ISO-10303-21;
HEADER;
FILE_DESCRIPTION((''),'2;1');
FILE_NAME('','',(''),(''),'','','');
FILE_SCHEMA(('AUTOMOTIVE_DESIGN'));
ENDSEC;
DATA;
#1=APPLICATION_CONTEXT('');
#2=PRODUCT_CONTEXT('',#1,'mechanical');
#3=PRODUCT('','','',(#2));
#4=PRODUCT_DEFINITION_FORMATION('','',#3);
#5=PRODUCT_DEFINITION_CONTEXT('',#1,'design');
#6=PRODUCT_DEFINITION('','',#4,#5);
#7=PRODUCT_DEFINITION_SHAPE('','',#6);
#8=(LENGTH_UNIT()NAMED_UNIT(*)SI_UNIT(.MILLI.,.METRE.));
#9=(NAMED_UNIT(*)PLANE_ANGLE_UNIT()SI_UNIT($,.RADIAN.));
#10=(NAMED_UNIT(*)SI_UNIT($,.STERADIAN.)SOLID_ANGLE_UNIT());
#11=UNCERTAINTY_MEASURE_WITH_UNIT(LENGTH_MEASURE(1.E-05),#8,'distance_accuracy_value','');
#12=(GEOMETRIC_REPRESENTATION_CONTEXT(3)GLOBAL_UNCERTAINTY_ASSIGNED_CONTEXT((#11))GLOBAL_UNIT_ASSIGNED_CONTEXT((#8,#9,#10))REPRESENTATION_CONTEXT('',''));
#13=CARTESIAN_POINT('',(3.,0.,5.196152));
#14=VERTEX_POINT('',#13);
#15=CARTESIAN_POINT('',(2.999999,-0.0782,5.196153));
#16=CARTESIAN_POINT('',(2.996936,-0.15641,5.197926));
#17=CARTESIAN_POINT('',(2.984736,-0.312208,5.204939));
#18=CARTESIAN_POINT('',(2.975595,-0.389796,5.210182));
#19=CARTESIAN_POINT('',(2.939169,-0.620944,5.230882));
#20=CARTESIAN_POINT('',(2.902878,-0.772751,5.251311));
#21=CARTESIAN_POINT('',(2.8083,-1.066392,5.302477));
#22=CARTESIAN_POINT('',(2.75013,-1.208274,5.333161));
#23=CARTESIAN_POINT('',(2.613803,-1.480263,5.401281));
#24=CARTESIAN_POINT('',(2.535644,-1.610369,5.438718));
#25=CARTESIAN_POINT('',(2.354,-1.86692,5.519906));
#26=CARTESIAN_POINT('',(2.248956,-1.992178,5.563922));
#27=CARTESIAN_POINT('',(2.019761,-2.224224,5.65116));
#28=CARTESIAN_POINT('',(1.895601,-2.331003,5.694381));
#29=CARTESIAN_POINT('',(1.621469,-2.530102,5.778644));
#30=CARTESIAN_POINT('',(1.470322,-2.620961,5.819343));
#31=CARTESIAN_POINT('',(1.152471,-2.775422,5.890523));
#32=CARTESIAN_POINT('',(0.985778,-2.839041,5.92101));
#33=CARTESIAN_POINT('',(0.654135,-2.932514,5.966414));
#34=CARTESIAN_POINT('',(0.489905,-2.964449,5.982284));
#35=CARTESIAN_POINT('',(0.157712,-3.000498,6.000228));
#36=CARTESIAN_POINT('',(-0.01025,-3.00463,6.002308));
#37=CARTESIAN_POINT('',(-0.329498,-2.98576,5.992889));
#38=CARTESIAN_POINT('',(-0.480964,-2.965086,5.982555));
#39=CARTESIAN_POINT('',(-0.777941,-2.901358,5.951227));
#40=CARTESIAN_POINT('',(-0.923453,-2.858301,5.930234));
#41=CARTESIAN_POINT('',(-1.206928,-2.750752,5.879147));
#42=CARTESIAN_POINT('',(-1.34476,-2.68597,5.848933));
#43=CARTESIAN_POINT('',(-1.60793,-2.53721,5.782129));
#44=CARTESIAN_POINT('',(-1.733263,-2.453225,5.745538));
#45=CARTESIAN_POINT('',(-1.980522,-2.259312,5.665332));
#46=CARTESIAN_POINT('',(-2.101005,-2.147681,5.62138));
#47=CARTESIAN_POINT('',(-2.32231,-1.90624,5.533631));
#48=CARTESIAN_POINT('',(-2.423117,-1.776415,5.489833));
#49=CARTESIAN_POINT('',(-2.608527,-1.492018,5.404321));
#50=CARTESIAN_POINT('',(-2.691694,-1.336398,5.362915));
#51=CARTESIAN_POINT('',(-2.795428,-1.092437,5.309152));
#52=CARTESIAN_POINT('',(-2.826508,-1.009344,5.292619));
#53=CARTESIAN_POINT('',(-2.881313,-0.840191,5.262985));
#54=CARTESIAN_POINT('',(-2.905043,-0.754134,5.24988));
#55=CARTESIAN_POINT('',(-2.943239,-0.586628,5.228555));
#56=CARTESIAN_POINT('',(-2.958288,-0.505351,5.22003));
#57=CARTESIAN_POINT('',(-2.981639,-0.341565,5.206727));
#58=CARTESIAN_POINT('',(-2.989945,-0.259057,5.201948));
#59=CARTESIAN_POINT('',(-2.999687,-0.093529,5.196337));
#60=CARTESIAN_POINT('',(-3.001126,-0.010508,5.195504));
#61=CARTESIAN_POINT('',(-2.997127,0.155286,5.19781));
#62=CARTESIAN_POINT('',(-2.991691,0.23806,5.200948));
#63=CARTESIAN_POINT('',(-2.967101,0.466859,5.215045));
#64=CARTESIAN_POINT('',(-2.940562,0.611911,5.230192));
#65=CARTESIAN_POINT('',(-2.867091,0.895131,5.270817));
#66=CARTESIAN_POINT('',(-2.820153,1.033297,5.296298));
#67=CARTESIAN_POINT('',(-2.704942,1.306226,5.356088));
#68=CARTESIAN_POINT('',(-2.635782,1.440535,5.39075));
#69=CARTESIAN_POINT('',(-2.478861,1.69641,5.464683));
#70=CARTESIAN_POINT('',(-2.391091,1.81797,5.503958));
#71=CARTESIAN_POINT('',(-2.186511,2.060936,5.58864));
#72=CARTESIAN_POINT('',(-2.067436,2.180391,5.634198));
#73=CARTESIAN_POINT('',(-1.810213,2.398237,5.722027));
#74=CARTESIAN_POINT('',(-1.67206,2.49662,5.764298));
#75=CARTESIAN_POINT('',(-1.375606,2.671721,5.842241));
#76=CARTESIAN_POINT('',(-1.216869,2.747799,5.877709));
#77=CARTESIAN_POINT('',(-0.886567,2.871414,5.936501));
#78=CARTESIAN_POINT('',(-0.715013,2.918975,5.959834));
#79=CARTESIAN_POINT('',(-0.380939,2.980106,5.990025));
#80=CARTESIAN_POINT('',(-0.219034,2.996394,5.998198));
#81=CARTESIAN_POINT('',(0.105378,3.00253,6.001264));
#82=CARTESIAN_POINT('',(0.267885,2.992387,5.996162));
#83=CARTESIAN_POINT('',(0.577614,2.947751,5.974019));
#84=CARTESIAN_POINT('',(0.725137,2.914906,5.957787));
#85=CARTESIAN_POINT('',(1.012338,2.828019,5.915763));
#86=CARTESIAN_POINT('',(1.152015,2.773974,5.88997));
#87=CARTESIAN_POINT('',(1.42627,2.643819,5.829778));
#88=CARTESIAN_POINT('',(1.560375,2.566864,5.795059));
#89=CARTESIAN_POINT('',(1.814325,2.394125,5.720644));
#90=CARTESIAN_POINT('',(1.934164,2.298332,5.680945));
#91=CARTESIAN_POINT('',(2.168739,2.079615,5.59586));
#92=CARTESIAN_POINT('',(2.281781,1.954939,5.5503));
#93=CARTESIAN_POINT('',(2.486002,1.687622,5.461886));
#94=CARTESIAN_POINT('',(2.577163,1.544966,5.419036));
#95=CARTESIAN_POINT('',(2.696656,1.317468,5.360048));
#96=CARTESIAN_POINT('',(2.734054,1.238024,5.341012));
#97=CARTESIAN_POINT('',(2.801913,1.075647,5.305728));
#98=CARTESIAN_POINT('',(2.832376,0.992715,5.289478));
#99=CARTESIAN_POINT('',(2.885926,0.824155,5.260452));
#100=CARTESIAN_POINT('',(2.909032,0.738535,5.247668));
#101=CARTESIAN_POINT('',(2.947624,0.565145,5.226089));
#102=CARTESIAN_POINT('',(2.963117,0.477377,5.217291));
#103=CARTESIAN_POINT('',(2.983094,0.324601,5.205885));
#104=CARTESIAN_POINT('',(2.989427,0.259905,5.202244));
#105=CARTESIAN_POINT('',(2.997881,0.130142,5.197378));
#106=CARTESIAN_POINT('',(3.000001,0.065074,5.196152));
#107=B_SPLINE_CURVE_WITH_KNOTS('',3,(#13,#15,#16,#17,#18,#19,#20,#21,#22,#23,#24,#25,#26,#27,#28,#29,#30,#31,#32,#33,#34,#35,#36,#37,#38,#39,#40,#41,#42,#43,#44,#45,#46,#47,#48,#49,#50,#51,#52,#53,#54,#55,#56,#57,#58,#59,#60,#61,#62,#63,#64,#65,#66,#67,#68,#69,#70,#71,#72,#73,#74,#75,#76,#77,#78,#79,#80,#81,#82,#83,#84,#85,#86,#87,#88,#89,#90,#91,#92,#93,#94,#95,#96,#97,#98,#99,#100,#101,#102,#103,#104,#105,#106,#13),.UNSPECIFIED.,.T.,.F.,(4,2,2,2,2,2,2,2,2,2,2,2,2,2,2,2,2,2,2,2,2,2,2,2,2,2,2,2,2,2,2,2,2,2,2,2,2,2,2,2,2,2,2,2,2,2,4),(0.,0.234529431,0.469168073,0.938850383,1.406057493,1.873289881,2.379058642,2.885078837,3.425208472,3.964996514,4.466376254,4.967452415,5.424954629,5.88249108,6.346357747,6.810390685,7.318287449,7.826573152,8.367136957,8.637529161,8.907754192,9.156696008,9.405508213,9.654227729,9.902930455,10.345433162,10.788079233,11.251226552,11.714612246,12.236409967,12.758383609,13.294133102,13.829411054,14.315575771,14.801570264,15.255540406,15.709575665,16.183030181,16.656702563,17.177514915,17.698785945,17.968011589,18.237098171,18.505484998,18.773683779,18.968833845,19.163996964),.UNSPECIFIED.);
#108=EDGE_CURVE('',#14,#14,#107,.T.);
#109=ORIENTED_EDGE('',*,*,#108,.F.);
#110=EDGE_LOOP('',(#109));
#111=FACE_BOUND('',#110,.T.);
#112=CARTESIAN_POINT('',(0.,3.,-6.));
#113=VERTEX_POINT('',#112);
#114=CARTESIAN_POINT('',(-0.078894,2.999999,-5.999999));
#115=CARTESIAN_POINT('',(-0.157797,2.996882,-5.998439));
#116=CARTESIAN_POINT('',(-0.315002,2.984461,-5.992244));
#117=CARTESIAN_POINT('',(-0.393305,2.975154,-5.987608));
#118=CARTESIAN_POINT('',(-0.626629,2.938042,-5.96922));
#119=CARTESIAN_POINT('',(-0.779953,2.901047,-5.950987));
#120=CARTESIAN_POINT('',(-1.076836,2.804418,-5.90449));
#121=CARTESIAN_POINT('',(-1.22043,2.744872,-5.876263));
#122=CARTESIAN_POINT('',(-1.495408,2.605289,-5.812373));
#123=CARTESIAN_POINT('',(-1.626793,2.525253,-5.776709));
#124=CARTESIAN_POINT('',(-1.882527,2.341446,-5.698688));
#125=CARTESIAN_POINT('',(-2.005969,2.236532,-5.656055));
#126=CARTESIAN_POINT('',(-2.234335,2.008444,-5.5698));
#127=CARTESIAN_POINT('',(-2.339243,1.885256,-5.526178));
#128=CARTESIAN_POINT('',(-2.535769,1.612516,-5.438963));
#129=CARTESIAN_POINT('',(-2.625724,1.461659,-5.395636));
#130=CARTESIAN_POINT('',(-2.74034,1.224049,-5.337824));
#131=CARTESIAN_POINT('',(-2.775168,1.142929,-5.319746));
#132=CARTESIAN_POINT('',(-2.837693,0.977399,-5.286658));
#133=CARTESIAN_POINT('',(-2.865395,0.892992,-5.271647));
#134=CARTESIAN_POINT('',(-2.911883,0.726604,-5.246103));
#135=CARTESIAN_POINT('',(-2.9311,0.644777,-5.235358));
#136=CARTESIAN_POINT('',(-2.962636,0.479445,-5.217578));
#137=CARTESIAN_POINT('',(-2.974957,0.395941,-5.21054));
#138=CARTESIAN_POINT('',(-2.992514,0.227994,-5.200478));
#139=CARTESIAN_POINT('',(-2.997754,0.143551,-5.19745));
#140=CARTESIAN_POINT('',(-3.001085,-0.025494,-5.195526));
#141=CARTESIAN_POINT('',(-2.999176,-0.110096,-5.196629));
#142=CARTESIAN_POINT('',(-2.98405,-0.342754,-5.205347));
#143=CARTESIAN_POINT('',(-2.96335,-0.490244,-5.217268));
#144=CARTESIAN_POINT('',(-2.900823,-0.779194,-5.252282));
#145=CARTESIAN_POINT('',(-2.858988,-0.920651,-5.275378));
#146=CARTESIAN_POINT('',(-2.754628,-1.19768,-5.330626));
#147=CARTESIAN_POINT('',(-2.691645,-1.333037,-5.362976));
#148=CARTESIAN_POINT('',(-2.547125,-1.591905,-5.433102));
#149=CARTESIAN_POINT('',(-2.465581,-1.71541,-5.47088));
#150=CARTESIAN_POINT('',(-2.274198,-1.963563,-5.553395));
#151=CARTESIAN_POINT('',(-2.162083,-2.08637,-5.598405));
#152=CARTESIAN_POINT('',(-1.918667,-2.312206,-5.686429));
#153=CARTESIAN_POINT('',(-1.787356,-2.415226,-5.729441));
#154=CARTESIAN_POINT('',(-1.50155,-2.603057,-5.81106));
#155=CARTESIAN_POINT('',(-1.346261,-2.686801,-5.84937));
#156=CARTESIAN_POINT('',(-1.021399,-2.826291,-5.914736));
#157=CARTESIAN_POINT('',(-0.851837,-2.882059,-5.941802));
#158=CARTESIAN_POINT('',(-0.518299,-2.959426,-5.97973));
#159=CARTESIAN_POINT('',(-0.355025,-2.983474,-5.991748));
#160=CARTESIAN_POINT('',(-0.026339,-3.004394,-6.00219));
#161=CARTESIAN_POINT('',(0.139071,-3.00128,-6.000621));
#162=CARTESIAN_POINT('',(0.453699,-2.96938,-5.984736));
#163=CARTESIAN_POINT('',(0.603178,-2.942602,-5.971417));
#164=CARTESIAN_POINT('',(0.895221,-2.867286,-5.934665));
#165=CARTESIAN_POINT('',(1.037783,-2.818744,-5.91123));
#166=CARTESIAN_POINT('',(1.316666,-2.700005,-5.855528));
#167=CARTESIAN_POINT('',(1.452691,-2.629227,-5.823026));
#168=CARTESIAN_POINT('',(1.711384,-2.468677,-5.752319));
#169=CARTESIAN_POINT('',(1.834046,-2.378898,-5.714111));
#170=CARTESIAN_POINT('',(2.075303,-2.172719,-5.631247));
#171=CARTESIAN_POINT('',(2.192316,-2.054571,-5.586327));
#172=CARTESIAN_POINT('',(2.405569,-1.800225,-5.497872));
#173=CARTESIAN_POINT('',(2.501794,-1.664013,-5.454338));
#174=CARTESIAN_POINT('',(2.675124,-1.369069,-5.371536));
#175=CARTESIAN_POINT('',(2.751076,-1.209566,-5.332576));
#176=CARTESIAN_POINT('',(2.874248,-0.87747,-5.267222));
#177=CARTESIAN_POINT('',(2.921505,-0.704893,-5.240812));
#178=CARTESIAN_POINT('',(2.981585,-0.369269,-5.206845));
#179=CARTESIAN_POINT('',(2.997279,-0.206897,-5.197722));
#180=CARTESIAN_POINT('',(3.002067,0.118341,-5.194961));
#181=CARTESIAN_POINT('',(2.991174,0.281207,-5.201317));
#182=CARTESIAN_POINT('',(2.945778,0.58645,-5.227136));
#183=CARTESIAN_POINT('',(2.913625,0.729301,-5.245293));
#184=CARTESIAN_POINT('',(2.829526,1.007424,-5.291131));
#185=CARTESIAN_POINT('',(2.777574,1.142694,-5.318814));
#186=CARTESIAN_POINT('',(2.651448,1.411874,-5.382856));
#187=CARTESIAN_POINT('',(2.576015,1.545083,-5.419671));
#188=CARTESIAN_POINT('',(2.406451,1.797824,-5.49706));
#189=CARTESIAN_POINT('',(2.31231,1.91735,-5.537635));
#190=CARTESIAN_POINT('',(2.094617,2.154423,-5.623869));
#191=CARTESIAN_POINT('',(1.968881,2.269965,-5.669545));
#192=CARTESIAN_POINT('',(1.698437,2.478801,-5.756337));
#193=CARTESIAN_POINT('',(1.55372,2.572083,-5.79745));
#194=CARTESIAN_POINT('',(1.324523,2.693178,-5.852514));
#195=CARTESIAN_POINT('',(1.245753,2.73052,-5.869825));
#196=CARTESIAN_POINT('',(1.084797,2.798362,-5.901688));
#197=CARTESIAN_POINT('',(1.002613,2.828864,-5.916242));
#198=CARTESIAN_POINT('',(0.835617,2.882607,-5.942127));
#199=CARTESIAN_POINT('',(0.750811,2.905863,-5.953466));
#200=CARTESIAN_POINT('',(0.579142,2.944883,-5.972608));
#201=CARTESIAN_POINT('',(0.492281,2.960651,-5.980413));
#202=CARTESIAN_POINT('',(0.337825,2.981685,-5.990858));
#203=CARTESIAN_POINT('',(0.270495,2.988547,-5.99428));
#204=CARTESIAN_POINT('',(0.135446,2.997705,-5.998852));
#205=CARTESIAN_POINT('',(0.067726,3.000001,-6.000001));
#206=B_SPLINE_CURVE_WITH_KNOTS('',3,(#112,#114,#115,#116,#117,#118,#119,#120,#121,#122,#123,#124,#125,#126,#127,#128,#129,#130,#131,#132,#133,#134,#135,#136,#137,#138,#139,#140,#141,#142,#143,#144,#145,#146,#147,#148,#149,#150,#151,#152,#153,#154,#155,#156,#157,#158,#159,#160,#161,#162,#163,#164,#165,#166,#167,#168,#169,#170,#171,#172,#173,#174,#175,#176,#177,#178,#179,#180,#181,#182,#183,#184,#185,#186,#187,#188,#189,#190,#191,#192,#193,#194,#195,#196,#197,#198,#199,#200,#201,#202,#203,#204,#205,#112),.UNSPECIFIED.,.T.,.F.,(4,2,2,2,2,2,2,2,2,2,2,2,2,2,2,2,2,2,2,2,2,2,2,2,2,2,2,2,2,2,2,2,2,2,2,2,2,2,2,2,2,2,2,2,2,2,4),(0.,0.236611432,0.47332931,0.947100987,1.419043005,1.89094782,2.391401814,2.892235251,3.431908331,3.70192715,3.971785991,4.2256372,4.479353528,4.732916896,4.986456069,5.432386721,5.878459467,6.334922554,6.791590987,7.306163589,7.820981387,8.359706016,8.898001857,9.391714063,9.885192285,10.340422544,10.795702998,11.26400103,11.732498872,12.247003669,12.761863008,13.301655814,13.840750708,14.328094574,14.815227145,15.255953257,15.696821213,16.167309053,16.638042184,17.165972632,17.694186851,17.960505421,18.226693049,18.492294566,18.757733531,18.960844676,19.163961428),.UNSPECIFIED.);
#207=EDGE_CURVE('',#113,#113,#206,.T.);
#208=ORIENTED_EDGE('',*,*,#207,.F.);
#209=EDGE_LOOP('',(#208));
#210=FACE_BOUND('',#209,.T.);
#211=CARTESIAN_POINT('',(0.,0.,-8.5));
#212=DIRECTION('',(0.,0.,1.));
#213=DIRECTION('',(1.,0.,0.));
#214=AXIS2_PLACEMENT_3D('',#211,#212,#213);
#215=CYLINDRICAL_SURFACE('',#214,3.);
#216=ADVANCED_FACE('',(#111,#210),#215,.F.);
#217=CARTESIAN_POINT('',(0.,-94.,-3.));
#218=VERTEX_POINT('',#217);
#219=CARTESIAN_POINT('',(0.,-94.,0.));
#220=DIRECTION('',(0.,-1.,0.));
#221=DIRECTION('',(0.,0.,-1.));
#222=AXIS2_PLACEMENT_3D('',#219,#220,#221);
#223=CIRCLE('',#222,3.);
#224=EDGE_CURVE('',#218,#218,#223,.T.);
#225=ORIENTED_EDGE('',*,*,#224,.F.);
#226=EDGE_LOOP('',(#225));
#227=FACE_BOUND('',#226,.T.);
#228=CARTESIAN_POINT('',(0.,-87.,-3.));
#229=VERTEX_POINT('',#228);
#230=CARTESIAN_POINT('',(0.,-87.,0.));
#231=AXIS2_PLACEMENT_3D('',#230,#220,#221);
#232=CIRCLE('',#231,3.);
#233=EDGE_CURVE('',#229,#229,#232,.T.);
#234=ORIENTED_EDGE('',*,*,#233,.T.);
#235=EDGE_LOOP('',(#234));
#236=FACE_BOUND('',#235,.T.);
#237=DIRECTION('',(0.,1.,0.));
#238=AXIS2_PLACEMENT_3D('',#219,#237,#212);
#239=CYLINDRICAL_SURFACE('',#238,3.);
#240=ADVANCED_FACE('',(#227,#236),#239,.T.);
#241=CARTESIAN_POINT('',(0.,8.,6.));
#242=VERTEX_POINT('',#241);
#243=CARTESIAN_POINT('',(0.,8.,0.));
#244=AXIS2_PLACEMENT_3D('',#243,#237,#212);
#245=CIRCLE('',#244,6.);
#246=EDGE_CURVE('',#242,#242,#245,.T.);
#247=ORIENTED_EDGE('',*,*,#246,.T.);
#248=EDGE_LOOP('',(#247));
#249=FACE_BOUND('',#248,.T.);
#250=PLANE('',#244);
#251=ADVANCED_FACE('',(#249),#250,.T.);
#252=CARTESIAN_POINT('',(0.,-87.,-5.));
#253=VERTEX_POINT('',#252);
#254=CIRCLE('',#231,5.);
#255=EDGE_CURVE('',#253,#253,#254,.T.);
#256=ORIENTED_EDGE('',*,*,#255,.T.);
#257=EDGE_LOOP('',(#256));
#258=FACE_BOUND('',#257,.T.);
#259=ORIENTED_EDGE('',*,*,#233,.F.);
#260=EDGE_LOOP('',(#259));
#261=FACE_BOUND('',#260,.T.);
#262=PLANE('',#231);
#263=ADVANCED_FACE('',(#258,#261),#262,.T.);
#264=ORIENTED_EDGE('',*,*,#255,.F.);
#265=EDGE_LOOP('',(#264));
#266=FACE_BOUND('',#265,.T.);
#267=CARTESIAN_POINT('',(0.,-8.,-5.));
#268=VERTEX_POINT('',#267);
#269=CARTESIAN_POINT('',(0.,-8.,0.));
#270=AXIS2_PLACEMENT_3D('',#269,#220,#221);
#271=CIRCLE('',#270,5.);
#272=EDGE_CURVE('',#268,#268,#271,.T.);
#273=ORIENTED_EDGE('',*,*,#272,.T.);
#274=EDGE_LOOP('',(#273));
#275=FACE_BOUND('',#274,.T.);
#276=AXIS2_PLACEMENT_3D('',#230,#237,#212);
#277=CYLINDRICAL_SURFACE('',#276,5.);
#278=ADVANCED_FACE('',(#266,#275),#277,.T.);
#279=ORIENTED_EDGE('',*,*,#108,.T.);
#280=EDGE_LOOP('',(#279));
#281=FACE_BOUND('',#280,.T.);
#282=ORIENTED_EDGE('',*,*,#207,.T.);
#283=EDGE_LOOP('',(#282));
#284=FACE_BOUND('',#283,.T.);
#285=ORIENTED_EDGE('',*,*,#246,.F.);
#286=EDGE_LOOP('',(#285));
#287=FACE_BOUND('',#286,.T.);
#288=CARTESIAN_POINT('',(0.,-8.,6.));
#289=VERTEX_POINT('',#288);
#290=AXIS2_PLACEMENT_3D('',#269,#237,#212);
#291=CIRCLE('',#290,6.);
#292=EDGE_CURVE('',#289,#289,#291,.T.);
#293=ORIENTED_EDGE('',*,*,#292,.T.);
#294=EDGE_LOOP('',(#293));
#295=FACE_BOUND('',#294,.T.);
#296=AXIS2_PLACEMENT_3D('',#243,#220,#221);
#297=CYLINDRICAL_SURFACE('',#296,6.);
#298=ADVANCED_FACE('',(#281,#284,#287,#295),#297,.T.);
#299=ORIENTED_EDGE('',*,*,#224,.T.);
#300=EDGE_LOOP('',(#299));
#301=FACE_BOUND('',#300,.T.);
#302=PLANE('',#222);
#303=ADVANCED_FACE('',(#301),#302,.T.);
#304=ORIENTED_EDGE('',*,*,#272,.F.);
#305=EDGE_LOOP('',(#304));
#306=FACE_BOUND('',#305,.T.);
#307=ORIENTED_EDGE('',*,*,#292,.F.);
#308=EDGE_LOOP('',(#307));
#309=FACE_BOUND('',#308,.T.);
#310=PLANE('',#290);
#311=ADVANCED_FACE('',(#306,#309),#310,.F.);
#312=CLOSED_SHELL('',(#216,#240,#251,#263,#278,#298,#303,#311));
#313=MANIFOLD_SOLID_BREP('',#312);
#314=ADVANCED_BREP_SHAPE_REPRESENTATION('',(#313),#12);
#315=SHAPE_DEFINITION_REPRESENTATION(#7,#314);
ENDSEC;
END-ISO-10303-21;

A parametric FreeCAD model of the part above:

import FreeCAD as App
import Part
import Sketcher
from FreeCAD import Vector

doc = App.newDocument("Part")
body = doc.addObject("PartDesign::Body", "Body")

# Sketch on XZ plane
sketch1 = body.newObject("Sketcher::SketchObject", "Sketch")
sketch1.AttachmentSupport = (doc.getObject("XZ_Plane"), [""])
sketch1.MapMode = "FlatFace"
sketch1.addGeometry(Part.Circle(Vector(0, 0, 0), Vector(0, 0, 1), 6), False)
sketch1.addConstraint([
    Sketcher.Constraint("Coincident", 0, 3, -1, 1),
    Sketcher.Constraint("Diameter", 0, 12.0),
])
pad1 = body.newObject("PartDesign::Pad", "Pad")
pad1.Profile = sketch1
pad1.Length = 16
pad1.Midplane = True

# Sketch on XZ plane
sketch2 = body.newObject("Sketcher::SketchObject", "Sketch001")
sketch2.AttachmentSupport = (doc.getObject("XZ_Plane"), [""])
sketch2.MapMode = "FlatFace"
sketch2.AttachmentOffset = App.Placement(Vector(0, 0, 8), App.Rotation())
sketch2.addGeometry(Part.Circle(Vector(0, 0, 0), Vector(0, 0, 1), 5), False)
sketch2.addConstraint([
    Sketcher.Constraint("Coincident", 0, 3, -1, 1),
    Sketcher.Constraint("Diameter", 0, 10.0),
])
pad2 = body.newObject("PartDesign::Pad", "Pad001")
pad2.Profile = sketch2
pad2.Length = 79

# Sketch on XZ plane
sketch3 = body.newObject("Sketcher::SketchObject", "Sketch002")
sketch3.AttachmentSupport = (doc.getObject("XZ_Plane"), [""])
sketch3.MapMode = "FlatFace"
sketch3.AttachmentOffset = App.Placement(Vector(0, 0, 87), App.Rotation())
sketch3.addGeometry(Part.Circle(Vector(0, 0, 0), Vector(0, 0, 1), 3), False)
sketch3.addConstraint([
    Sketcher.Constraint("Coincident", 0, 3, -1, 1),
    Sketcher.Constraint("Diameter", 0, 6.0),
])
pad3 = body.newObject("PartDesign::Pad", "Pad002")
pad3.Profile = sketch3
pad3.Length = 7

# Sketch on XY plane
sketch4 = body.newObject("Sketcher::SketchObject", "Sketch003")
sketch4.AttachmentSupport = (doc.getObject("XY_Plane"), [""])
sketch4.MapMode = "FlatFace"
sketch4.addGeometry(Part.Circle(Vector(0, 0, 0), Vector(0, 0, 1), 3), False)
sketch4.addConstraint([
    Sketcher.Constraint("Coincident", 0, 3, -1, 1),
    Sketcher.Constraint("Diameter", 0, 6.0),
])
pocket1 = body.newObject("PartDesign::Pocket", "Pocket")
pocket1.Profile = sketch4
pocket1.Length = 17
pocket1.Midplane = True

doc.recompute()
